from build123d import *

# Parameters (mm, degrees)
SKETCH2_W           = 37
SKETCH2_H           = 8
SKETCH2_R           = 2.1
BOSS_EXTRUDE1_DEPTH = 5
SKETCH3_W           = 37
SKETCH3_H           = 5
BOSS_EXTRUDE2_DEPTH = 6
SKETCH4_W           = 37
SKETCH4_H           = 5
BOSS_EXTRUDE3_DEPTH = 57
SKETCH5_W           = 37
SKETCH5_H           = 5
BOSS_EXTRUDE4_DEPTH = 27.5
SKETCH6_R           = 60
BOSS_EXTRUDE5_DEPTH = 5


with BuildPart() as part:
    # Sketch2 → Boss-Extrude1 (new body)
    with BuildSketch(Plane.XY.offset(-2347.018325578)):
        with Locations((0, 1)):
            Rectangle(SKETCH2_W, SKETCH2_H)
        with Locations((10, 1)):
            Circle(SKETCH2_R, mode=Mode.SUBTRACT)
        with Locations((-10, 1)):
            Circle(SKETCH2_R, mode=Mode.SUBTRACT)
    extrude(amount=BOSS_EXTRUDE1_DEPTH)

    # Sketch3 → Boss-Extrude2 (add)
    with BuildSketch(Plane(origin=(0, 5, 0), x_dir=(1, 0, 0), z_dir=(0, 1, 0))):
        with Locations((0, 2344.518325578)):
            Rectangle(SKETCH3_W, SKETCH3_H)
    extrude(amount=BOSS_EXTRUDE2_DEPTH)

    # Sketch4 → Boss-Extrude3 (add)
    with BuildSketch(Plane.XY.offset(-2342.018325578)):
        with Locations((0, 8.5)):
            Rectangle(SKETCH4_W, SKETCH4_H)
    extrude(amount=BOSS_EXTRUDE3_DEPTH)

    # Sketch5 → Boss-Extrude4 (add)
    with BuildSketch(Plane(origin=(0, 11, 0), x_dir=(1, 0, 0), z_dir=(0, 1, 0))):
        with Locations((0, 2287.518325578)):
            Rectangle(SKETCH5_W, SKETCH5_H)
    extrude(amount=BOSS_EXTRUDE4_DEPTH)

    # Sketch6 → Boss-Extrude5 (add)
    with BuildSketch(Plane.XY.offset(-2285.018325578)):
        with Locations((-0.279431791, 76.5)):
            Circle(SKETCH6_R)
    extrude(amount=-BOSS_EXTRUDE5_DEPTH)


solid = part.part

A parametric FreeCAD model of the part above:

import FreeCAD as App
import Part
import Sketcher
from FreeCAD import Vector

doc = App.newDocument("Part")
body = doc.addObject("PartDesign::Body", "Body")

# Sketch on XY plane
sketch1 = doc.addObject("Sketcher::SketchObject", "Sketch")
body.addObject(sketch1)
sketch1.AttachmentSupport = (doc.XY_Plane, [""])
sketch1.MapMode = "FlatFace"
sketch1.AttachmentOffset = App.Placement(Vector(0, 0, -2347.018326), App.Rotation())
sketch1.addGeometry([
    Part.LineSegment(Vector(-18.5, 5, 0), Vector(-18.5, -3, 0)),  # 0
    Part.LineSegment(Vector(-18.5, -3, 0), Vector(18.5, -3, 0)),  # 1
    Part.LineSegment(Vector(18.5, -3, 0), Vector(18.5, 5, 0)),  # 2
    Part.LineSegment(Vector(18.5, 5, 0), Vector(-18.5, 5, 0)),  # 3
    Part.Circle(Vector(-10, 1, 0), Vector(0, 0, 1), 2.1),  # 4
    Part.Circle(Vector(10, 1, 0), Vector(0, 0, 1), 2.1),  # 5
], False)
sketch1.addConstraint([
    Sketcher.Constraint("Coincident", 0, 2, 1, 1),
    Sketcher.Constraint("Coincident", 1, 2, 2, 1),
    Sketcher.Constraint("Coincident", 2, 2, 3, 1),
    Sketcher.Constraint("Coincident", 3, 2, 0, 1),
    Sketcher.Constraint("Vertical", 0),
    Sketcher.Constraint("Horizontal", 1),
    Sketcher.Constraint("Vertical", 2),
    Sketcher.Constraint("Horizontal", 3),
    Sketcher.Constraint("Equal", 4, 5),
    Sketcher.Constraint("Symmetric", 4, 3, 5, 3, -2),
    Sketcher.Constraint("Diameter", 4, 4.2),
    Sketcher.Constraint("DistanceX", 1, 1, 1, 2, 37.0),
    Sketcher.Constraint("DistanceY", 0, 2, 0, 1, 8.0),
    Sketcher.Constraint("DistanceX", 4, 3, -1, 1, 10.0),
    Sketcher.Constraint("DistanceY", -1, 1, 4, 3, 1.0),
    Sketcher.Constraint("DistanceY", 0, 2, -1, 1, 3.0),
    Sketcher.Constraint("DistanceX", 0, 2, -1, 1, 18.5),
])
pad1 = doc.addObject("PartDesign::Pad", "Pad")
body.addObject(pad1)
pad1.Profile = sketch1
pad1.Length = 5

# Sketch on XZ plane
sketch2 = doc.addObject("Sketcher::SketchObject", "Sketch001")
body.addObject(sketch2)
sketch2.AttachmentSupport = (doc.XZ_Plane, [""])
sketch2.MapMode = "FlatFace"
sketch2.AttachmentOffset = App.Placement(Vector(0, 0, -5), App.Rotation())
sketch2.addGeometry([
    Part.LineSegment(Vector(-18.5, -2347.018326, 0), Vector(-18.5, -2342.018326, 0)),
    Part.LineSegment(Vector(-18.5, -2342.018326, 0), Vector(18.5, -2342.018326, 0)),
    Part.LineSegment(Vector(18.5, -2342.018326, 0), Vector(18.5, -2347.018326, 0)),
    Part.LineSegment(Vector(18.5, -2347.018326, 0), Vector(-18.5, -2347.018326, 0)),
], False)
sketch2.addConstraint([
    Sketcher.Constraint("Coincident", 0, 2, 1, 1),
    Sketcher.Constraint("Coincident", 1, 2, 2, 1),
    Sketcher.Constraint("Coincident", 2, 2, 3, 1),
    Sketcher.Constraint("Coincident", 3, 2, 0, 1),
    Sketcher.Constraint("Vertical", 0),
    Sketcher.Constraint("Horizontal", 1),
    Sketcher.Constraint("Vertical", 2),
    Sketcher.Constraint("Horizontal", 3),
    Sketcher.Constraint("DistanceX", 1, 1, 1, 2, 37.0),
    Sketcher.Constraint("DistanceY", 0, 1, 0, 2, 5.0),
    Sketcher.Constraint("DistanceX", 0, 2, -1, 1, 18.5),
    Sketcher.Constraint("DistanceY", 0, 2, -1, 1, 2342.018326),
])
pad2 = doc.addObject("PartDesign::Pad", "Pad001")
body.addObject(pad2)
pad2.Profile = sketch2
pad2.Length = 6
pad2.Reversed = True

# Sketch on XY plane
sketch3 = doc.addObject("Sketcher::SketchObject", "Sketch002")
body.addObject(sketch3)
sketch3.AttachmentSupport = (doc.XY_Plane, [""])
sketch3.MapMode = "FlatFace"
sketch3.AttachmentOffset = App.Placement(Vector(0, 0, -2342.018326), App.Rotation())
sketch3.addGeometry([
    Part.LineSegment(Vector(-18.5, 11, 0), Vector(-18.5, 6, 0)),
    Part.LineSegment(Vector(-18.5, 6, 0), Vector(18.5, 6, 0)),
    Part.LineSegment(Vector(18.5, 6, 0), Vector(18.5, 11, 0)),
    Part.LineSegment(Vector(18.5, 11, 0), Vector(-18.5, 11, 0)),
], False)
sketch3.addConstraint([
    Sketcher.Constraint("Coincident", 0, 2, 1, 1),
    Sketcher.Constraint("Coincident", 1, 2, 2, 1),
    Sketcher.Constraint("Coincident", 2, 2, 3, 1),
    Sketcher.Constraint("Coincident", 3, 2, 0, 1),
    Sketcher.Constraint("Vertical", 0),
    Sketcher.Constraint("Horizontal", 1),
    Sketcher.Constraint("Vertical", 2),
    Sketcher.Constraint("Horizontal", 3),
    Sketcher.Constraint("DistanceX", 1, 1, 1, 2, 37.0),
    Sketcher.Constraint("DistanceY", 0, 2, 0, 1, 5.0),
    Sketcher.Constraint("DistanceY", -1, 1, 0, 2, 6.0),
    Sketcher.Constraint("DistanceX", 0, 2, -1, 1, 18.5),
])
pad3 = doc.addObject("PartDesign::Pad", "Pad002")
body.addObject(pad3)
pad3.Profile = sketch3
pad3.Length = 57

# Sketch on XZ plane
sketch4 = doc.addObject("Sketcher::SketchObject", "Sketch003")
body.addObject(sketch4)
sketch4.AttachmentSupport = (doc.XZ_Plane, [""])
sketch4.MapMode = "FlatFace"
sketch4.AttachmentOffset = App.Placement(Vector(0, 0, -11), App.Rotation())
sketch4.addGeometry([
    Part.LineSegment(Vector(-18.5, -2290.018326, 0), Vector(-18.5, -2285.018326, 0)),
    Part.LineSegment(Vector(-18.5, -2285.018326, 0), Vector(18.5, -2285.018326, 0)),
    Part.LineSegment(Vector(18.5, -2285.018326, 0), Vector(18.5, -2290.018326, 0)),
    Part.LineSegment(Vector(18.5, -2290.018326, 0), Vector(-18.5, -2290.018326, 0)),
], False)
sketch4.addConstraint([
    Sketcher.Constraint("Coincident", 0, 2, 1, 1),
    Sketcher.Constraint("Coincident", 1, 2, 2, 1),
    Sketcher.Constraint("Coincident", 2, 2, 3, 1),
    Sketcher.Constraint("Coincident", 3, 2, 0, 1),
    Sketcher.Constraint("Vertical", 0),
    Sketcher.Constraint("Horizontal", 1),
    Sketcher.Constraint("Vertical", 2),
    Sketcher.Constraint("Horizontal", 3),
    Sketcher.Constraint("DistanceX", 1, 1, 1, 2, 37.0),
    Sketcher.Constraint("DistanceY", 0, 1, 0, 2, 5.0),
    Sketcher.Constraint("DistanceX", 0, 2, -1, 1, 18.5),
    Sketcher.Constraint("DistanceY", 0, 2, -1, 1, 2285.018326),
])
pad4 = doc.addObject("PartDesign::Pad", "Pad003")
body.addObject(pad4)
pad4.Profile = sketch4
pad4.Length = 27.5
pad4.Reversed = True

# Sketch on XY plane
sketch5 = doc.addObject("Sketcher::SketchObject", "Sketch004")
body.addObject(sketch5)
sketch5.AttachmentSupport = (doc.XY_Plane, [""])
sketch5.MapMode = "FlatFace"
sketch5.AttachmentOffset = App.Placement(Vector(0, 0, -2285.018326), App.Rotation())
sketch5.addGeometry(Part.Circle(Vector(-0.279432, 76.5, 0), Vector(0, 0, 1), 60), False)
sketch5.addConstraint([
    Sketcher.Constraint("Diameter", 0, 120.0),
    Sketcher.Constraint("DistanceY", -1, 1, 0, 3, 76.5),
    Sketcher.Constraint("DistanceX", 0, 3, -1, 1, 0.279432),
])
pad5 = doc.addObject("PartDesign::Pad", "Pad004")
body.addObject(pad5)
pad5.Profile = sketch5
pad5.Length = 5
pad5.Reversed = True

doc.recompute()
